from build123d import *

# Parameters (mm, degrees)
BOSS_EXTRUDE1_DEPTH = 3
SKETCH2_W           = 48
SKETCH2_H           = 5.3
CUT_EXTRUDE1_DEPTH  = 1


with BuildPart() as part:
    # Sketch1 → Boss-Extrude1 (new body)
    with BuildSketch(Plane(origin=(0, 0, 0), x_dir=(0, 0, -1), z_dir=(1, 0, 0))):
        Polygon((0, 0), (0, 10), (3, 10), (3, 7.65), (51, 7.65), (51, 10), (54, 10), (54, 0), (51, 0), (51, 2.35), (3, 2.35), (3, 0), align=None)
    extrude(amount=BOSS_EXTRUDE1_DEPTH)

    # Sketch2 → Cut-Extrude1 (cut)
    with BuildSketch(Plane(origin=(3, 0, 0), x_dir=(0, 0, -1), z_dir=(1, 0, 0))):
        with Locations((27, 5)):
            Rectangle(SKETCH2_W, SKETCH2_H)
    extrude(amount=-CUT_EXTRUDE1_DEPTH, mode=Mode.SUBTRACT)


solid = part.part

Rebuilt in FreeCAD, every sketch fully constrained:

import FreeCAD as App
import Part
import Sketcher
from FreeCAD import Vector

doc = App.newDocument("Part")
params = doc.addObject("Spreadsheet::Sheet", "Params")
for row, (alias, value) in enumerate([
    ("sketch1_width", "10 mm"),
    ("sketch1_height", "3 mm"),
    ("sketch1_height2", "48 mm"),
    ("sketch1_width2", "2.35 mm"),
    ("pad1_length", "3 mm"),
    ("sketch2_height", "48 mm"),
    ("sketch2_width", "5.3 mm"),
    ("pocket1_length", "1 mm"),
], start=1):
    params.set(f"A{row}", alias)
    params.set(f"B{row}", "=" + value)
    params.setAlias(f"B{row}", alias)

body = doc.addObject("PartDesign::Body", "Body")

# Sketch on YZ plane
sketch1 = body.newObject("Sketcher::SketchObject", "Sketch")
sketch1.AttachmentSupport = (doc.getObject("YZ_Plane"), [""])
sketch1.MapMode = "FlatFace"
sketch1.addGeometry([
    Part.LineSegment(Vector(10, 0, 0), Vector(0, 0, 0)),  # 0
    Part.LineSegment(Vector(0, 0, 0), Vector(0, -3, 0)),  # 1
    Part.LineSegment(Vector(0, -3, 0), Vector(2.4, -3, 0)),  # 2
    Part.LineSegment(Vector(2.4, -3, 0), Vector(2.4, -51, 0)),  # 3
    Part.LineSegment(Vector(2.4, -51, 0), Vector(0, -51, 0)),  # 4
    Part.LineSegment(Vector(0, -51, 0), Vector(0, -54, 0)),  # 5
    Part.LineSegment(Vector(0, -54, 0), Vector(10, -54, 0)),  # 6
    Part.LineSegment(Vector(10, -54, 0), Vector(10, -51, 0)),  # 7
    Part.LineSegment(Vector(10, -51, 0), Vector(7.7, -51, 0)),  # 8
    Part.LineSegment(Vector(7.7, -51, 0), Vector(7.7, -3, 0)),  # 9
    Part.LineSegment(Vector(7.7, -3, 0), Vector(10, -3, 0)),  # 10
    Part.LineSegment(Vector(10, -3, 0), Vector(10, 0, 0)),  # 11
], False)
sketch1.addConstraint([
    Sketcher.Constraint("Coincident", 0, 2, 1, 1),
    Sketcher.Constraint("Coincident", 1, 2, 2, 1),
    Sketcher.Constraint("Coincident", 2, 2, 3, 1),
    Sketcher.Constraint("Coincident", 3, 2, 4, 1),
    Sketcher.Constraint("Coincident", 4, 2, 5, 1),
    Sketcher.Constraint("Coincident", 5, 2, 6, 1),
    Sketcher.Constraint("Coincident", 6, 2, 7, 1),
    Sketcher.Constraint("Coincident", 7, 2, 8, 1),
    Sketcher.Constraint("Coincident", 8, 2, 9, 1),
    Sketcher.Constraint("Coincident", 9, 2, 10, 1),
    Sketcher.Constraint("Coincident", 10, 2, 11, 1),
    Sketcher.Constraint("Coincident", 11, 2, 0, 1),
    Sketcher.Constraint("Horizontal", 0),
    Sketcher.Constraint("Vertical", 1),
    Sketcher.Constraint("Horizontal", 2),
    Sketcher.Constraint("Vertical", 3),
    Sketcher.Constraint("Horizontal", 4),
    Sketcher.Constraint("Vertical", 5),
    Sketcher.Constraint("Horizontal", 6),
    Sketcher.Constraint("Vertical", 7),
    Sketcher.Constraint("Horizontal", 8),
    Sketcher.Constraint("Vertical", 9),
    Sketcher.Constraint("Horizontal", 10),
    Sketcher.Constraint("Vertical", 11),
    Sketcher.Constraint("Coincident", 0, 2, -1, 1),
    Sketcher.Constraint("PointOnObject", 4, 2, -2),
    Sketcher.Constraint("Horizontal", 4, 2, 7, 2),
    Sketcher.Constraint("Horizontal", 2, 2, 9, 2),
    Sketcher.Constraint("Vertical", 7, 2, 10, 2),
    Sketcher.Constraint("Equal", 4, 8),
    Sketcher.Constraint("Equal", 1, 5),
    Sketcher.Constraint("DistanceX", 0, 2, 0, 1, 10.0),
    Sketcher.Constraint("DistanceY", 1, 2, 1, 1, 3.0),
    Sketcher.Constraint("DistanceY", 3, 2, 3, 1, 48.0),
    Sketcher.Constraint("DistanceX", 2, 1, 2, 2, 2.35),
])
sketch1.setExpression("Constraints[31]", "Params.sketch1_width")
sketch1.setExpression("Constraints[32]", "Params.sketch1_height")
sketch1.setExpression("Constraints[33]", "Params.sketch1_height2")
sketch1.setExpression("Constraints[34]", "Params.sketch1_width2")
pad1 = body.newObject("PartDesign::Pad", "Pad")
pad1.Profile = sketch1
pad1.setExpression("Length", "Params.pad1_length")

# Sketch on YZ plane
sketch2 = body.newObject("Sketcher::SketchObject", "Sketch001")
sketch2.AttachmentSupport = (doc.getObject("YZ_Plane"), [""])
sketch2.MapMode = "FlatFace"
sketch2.AttachmentOffset = App.Placement(Vector(0, 0, 3), App.Rotation())
sketch2.addGeometry([
    Part.LineSegment(Vector(8, -3, 0), Vector(2, -3, 0)),
    Part.LineSegment(Vector(2, -3, 0), Vector(2, -51, 0)),
    Part.LineSegment(Vector(2, -51, 0), Vector(8, -51, 0)),
    Part.LineSegment(Vector(8, -51, 0), Vector(8, -3, 0)),
], False)
sketch2.addConstraint([
    Sketcher.Constraint("Coincident", 0, 2, 1, 1),
    Sketcher.Constraint("Coincident", 1, 2, 2, 1),
    Sketcher.Constraint("Coincident", 2, 2, 3, 1),
    Sketcher.Constraint("Coincident", 3, 2, 0, 1),
    Sketcher.Constraint("Horizontal", 0),
    Sketcher.Constraint("Vertical", 1),
    Sketcher.Constraint("Horizontal", 2),
    Sketcher.Constraint("Vertical", 3),
    Sketcher.Constraint("DistanceY", 1, 2, 1, 1, 48.0),
    Sketcher.Constraint("DistanceX", 0, 2, 0, 1, 5.3),
    Sketcher.Constraint("DistanceY", 0, 2, -1, 1, 3.0),
    Sketcher.Constraint("DistanceX", -1, 1, 0, 2, 2.35),
])
sketch2.setExpression("Constraints[8]", "Params.sketch2_height")
sketch2.setExpression("Constraints[9]", "Params.sketch2_width")
pocket1 = body.newObject("PartDesign::Pocket", "Pocket")
pocket1.Profile = sketch2
pocket1.setExpression("Length", "Params.pocket1_length")

doc.recompute()
